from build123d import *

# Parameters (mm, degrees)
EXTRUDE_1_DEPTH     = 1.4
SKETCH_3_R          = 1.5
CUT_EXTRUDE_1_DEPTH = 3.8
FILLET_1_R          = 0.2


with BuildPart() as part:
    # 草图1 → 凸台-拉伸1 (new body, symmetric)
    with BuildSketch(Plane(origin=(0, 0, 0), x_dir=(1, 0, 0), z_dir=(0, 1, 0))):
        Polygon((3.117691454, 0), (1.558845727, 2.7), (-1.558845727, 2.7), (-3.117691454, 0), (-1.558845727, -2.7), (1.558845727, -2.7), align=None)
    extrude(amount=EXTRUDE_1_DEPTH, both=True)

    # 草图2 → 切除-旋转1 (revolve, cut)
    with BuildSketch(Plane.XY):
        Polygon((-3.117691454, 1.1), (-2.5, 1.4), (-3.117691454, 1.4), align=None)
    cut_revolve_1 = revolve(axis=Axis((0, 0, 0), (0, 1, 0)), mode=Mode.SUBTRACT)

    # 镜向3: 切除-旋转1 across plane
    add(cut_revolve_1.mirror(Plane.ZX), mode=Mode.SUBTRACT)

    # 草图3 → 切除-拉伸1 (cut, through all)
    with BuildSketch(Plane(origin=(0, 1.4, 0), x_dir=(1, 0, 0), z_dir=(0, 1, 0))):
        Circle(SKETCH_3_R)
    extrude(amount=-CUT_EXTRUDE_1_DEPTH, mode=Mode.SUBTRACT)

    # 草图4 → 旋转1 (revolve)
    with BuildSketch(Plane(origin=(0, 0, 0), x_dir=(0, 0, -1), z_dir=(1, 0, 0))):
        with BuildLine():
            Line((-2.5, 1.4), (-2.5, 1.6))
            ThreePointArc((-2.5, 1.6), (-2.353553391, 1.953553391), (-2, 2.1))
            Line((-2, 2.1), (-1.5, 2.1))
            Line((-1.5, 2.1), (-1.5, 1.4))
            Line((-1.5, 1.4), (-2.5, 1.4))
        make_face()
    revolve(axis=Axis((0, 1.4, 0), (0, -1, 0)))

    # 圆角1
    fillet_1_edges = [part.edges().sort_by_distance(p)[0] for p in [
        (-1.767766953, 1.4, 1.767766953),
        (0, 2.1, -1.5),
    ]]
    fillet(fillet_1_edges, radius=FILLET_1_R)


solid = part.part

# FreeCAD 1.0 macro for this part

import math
import FreeCAD as App
import Part
import Sketcher

V = App.Vector
Q = App.Units.Quantity


def edges_at(feature, points):
    """Names of the edges that pass closest to the given points."""
    edges = feature.Shape.Edges
    near = lambda p: min(range(len(edges)), key=lambda i: edges[i].distToShape(Part.Vertex(*p))[0])
    return sorted({f"Edge{near(p) + 1}" for p in points})


def add_polygon(sketch, points):
    """Adds a closed chain of lines whose ends are joined by coincident constraints."""
    first, n = sketch.GeometryCount, len(points)
    for a, b in zip(points, points[1:] + points[:1]):
        sketch.addGeometry(Part.LineSegment(App.Vector(*a, 0), App.Vector(*b, 0)), False)
    for i in range(n):
        sketch.addConstraint(Sketcher.Constraint("Coincident", first + i, 2, first + (i + 1) % n, 1))

doc = App.newDocument("Part")
body = doc.addObject("PartDesign::Body", "Body")

sketch1 = doc.addObject("Sketcher::SketchObject", "Sketch")
body.addObject(sketch1)
sketch1.AttachmentSupport = (doc.XZ_Plane, [""])
sketch1.MapMode = "FlatFace"
add_polygon(sketch1, [(3.1, 0), (1.6, -2.7), (-1.6, -2.7), (-3.1, 0), (-1.6, 2.7), (1.6, 2.7)])
sketch1.addConstraint(Sketcher.Constraint("Horizontal", 1))
sketch1.addConstraint(Sketcher.Constraint("Horizontal", 4))
sketch1.addConstraint(Sketcher.Constraint("Symmetric", 0, 2, 3, 2, -1, 1))
sketch1.addConstraint(Sketcher.Constraint("Symmetric", 2, 2, 5, 2, -1, 1))
sketch1.addConstraint(Sketcher.Constraint("PointOnObject", 2, 2, -1))
sketch1.addConstraint(Sketcher.Constraint("Parallel", 2, 5))
sketch1.addConstraint(Sketcher.Constraint("Vertical", 1, 2, 3, 2))
sketch1.addConstraint(Sketcher.Constraint("Angle", 0, Q("-120 deg")))
sketch1.addConstraint(Sketcher.Constraint("DistanceY", 0, 2, -1, 1, Q("2.7 mm")))
sketch1.addConstraint(Sketcher.Constraint("DistanceX", 1, 2, 1, 1, Q("3.117691 mm")))
pad1 = doc.addObject("PartDesign::Pad", "Pad")
body.addObject(pad1)
pad1.Profile = sketch1
pad1.Length = 2.8
pad1.Midplane = True

sketch2 = doc.addObject("Sketcher::SketchObject", "Sketch001")
body.addObject(sketch2)
sketch2.AttachmentSupport = (doc.XY_Plane, [""])
sketch2.MapMode = "FlatFace"
add_polygon(sketch2, [(-3.12, 1.1), (-2.5, 1.4), (-3.12, 1.4)])
sketch2.addConstraint(Sketcher.Constraint("Horizontal", 1))
sketch2.addConstraint(Sketcher.Constraint("Vertical", 2))
sketch2.addConstraint(Sketcher.Constraint("DistanceY", 2, 2, 2, 1, Q("0.3 mm")))
sketch2.addConstraint(Sketcher.Constraint("DistanceX", 0, 2, -1, 1, Q("2.5 mm")))
sketch2.addConstraint(Sketcher.Constraint("DistanceY", -1, 1, 0, 2, Q("1.4 mm")))
sketch2.addConstraint(Sketcher.Constraint("DistanceX", 1, 2, 1, 1, Q("0.617691 mm")))
groove = doc.addObject("PartDesign::Groove", "Groove")
body.addObject(groove)
groove.Profile = sketch2
groove.ReferenceAxis = (sketch2, ["V_Axis"])
groove.Angle = 360
doc.recompute()

mirrored = doc.addObject("PartDesign::Mirrored", "Mirrored")
body.addObject(mirrored)
mirrored.Originals = [groove]
mirrored.MirrorPlane = (doc.XZ_Plane, [""])
body.Tip = mirrored

sketch3 = doc.addObject("Sketcher::SketchObject", "Sketch002")
body.addObject(sketch3)
sketch3.AttachmentSupport = (doc.XZ_Plane, [""])
sketch3.MapMode = "FlatFace"
sketch3.AttachmentOffset = App.Placement(V(0, 0, -1.4), App.Rotation())
sketch3.addGeometry(Part.Circle(V(0, 0, 0), V(0, 0, 1), 1.5), False)
sketch3.addConstraint(Sketcher.Constraint("Coincident", 0, 3, -1, 1))
sketch3.addConstraint(Sketcher.Constraint("Diameter", 0, Q("3 mm")))
pocket1 = doc.addObject("PartDesign::Pocket", "Pocket")
body.addObject(pocket1)
pocket1.Profile = sketch3
pocket1.Type = "ThroughAll"
pocket1.Reversed = True

sketch4 = doc.addObject("Sketcher::SketchObject", "Sketch003")
body.addObject(sketch4)
sketch4.AttachmentSupport = (doc.YZ_Plane, [""])
sketch4.MapMode = "FlatFace"
sketch4.addGeometry(Part.LineSegment(V(1.6, 2.5, 0), V(1.4, 2.5, 0)), False)
sketch4.addGeometry(Part.LineSegment(V(1.4, 2.5, 0), V(1.4, 1.5, 0)), False)
sketch4.addGeometry(Part.LineSegment(V(1.4, 1.5, 0), V(2.1, 1.5, 0)), False)
sketch4.addGeometry(Part.LineSegment(V(2.1, 1.5, 0), V(2.1, 2, 0)), False)
sketch4.addGeometry(Part.ArcOfCircle(Part.Circle(V(1.6, 2, 0), V(0, 0, 1), 0.5), math.radians(0), math.radians(90)), False)
sketch4.addConstraint(Sketcher.Constraint("Coincident", 0, 2, 1, 1))
sketch4.addConstraint(Sketcher.Constraint("Coincident", 1, 2, 2, 1))
sketch4.addConstraint(Sketcher.Constraint("Coincident", 2, 2, 3, 1))
sketch4.addConstraint(Sketcher.Constraint("Tangent", 3, 2, 4, 1))
sketch4.addConstraint(Sketcher.Constraint("Tangent", 4, 2, 0, 1))
sketch4.addConstraint(Sketcher.Constraint("Horizontal", 0))
sketch4.addConstraint(Sketcher.Constraint("Vertical", 1))
sketch4.addConstraint(Sketcher.Constraint("Horizontal", 2))
sketch4.addConstraint(Sketcher.Constraint("Vertical", 3))
sketch4.addConstraint(Sketcher.Constraint("Radius", 4, Q("0.5 mm")))
sketch4.addConstraint(Sketcher.Constraint("DistanceY", 1, 2, 1, 1, Q("1 mm")))
sketch4.addConstraint(Sketcher.Constraint("DistanceX", 0, 2, 0, 1, Q("0.2 mm")))
sketch4.addConstraint(Sketcher.Constraint("DistanceY", -1, 1, 4, 3, Q("2 mm")))
sketch4.addConstraint(Sketcher.Constraint("DistanceX", -1, 1, 4, 3, Q("1.6 mm")))
revolution = doc.addObject("PartDesign::Revolution", "Revolution")
body.addObject(revolution)
revolution.Profile = sketch4
revolution.ReferenceAxis = (sketch4, ["H_Axis"])
revolution.Angle = 360
doc.recompute()

fillet = doc.addObject("PartDesign::Fillet", "Fillet")
body.addObject(fillet)
fillet.Base = (revolution, edges_at(revolution, [(-1.768, 1.4, 1.768), (0, 2.1, -1.5)]))
fillet.Radius = 0.2

doc.recompute()
